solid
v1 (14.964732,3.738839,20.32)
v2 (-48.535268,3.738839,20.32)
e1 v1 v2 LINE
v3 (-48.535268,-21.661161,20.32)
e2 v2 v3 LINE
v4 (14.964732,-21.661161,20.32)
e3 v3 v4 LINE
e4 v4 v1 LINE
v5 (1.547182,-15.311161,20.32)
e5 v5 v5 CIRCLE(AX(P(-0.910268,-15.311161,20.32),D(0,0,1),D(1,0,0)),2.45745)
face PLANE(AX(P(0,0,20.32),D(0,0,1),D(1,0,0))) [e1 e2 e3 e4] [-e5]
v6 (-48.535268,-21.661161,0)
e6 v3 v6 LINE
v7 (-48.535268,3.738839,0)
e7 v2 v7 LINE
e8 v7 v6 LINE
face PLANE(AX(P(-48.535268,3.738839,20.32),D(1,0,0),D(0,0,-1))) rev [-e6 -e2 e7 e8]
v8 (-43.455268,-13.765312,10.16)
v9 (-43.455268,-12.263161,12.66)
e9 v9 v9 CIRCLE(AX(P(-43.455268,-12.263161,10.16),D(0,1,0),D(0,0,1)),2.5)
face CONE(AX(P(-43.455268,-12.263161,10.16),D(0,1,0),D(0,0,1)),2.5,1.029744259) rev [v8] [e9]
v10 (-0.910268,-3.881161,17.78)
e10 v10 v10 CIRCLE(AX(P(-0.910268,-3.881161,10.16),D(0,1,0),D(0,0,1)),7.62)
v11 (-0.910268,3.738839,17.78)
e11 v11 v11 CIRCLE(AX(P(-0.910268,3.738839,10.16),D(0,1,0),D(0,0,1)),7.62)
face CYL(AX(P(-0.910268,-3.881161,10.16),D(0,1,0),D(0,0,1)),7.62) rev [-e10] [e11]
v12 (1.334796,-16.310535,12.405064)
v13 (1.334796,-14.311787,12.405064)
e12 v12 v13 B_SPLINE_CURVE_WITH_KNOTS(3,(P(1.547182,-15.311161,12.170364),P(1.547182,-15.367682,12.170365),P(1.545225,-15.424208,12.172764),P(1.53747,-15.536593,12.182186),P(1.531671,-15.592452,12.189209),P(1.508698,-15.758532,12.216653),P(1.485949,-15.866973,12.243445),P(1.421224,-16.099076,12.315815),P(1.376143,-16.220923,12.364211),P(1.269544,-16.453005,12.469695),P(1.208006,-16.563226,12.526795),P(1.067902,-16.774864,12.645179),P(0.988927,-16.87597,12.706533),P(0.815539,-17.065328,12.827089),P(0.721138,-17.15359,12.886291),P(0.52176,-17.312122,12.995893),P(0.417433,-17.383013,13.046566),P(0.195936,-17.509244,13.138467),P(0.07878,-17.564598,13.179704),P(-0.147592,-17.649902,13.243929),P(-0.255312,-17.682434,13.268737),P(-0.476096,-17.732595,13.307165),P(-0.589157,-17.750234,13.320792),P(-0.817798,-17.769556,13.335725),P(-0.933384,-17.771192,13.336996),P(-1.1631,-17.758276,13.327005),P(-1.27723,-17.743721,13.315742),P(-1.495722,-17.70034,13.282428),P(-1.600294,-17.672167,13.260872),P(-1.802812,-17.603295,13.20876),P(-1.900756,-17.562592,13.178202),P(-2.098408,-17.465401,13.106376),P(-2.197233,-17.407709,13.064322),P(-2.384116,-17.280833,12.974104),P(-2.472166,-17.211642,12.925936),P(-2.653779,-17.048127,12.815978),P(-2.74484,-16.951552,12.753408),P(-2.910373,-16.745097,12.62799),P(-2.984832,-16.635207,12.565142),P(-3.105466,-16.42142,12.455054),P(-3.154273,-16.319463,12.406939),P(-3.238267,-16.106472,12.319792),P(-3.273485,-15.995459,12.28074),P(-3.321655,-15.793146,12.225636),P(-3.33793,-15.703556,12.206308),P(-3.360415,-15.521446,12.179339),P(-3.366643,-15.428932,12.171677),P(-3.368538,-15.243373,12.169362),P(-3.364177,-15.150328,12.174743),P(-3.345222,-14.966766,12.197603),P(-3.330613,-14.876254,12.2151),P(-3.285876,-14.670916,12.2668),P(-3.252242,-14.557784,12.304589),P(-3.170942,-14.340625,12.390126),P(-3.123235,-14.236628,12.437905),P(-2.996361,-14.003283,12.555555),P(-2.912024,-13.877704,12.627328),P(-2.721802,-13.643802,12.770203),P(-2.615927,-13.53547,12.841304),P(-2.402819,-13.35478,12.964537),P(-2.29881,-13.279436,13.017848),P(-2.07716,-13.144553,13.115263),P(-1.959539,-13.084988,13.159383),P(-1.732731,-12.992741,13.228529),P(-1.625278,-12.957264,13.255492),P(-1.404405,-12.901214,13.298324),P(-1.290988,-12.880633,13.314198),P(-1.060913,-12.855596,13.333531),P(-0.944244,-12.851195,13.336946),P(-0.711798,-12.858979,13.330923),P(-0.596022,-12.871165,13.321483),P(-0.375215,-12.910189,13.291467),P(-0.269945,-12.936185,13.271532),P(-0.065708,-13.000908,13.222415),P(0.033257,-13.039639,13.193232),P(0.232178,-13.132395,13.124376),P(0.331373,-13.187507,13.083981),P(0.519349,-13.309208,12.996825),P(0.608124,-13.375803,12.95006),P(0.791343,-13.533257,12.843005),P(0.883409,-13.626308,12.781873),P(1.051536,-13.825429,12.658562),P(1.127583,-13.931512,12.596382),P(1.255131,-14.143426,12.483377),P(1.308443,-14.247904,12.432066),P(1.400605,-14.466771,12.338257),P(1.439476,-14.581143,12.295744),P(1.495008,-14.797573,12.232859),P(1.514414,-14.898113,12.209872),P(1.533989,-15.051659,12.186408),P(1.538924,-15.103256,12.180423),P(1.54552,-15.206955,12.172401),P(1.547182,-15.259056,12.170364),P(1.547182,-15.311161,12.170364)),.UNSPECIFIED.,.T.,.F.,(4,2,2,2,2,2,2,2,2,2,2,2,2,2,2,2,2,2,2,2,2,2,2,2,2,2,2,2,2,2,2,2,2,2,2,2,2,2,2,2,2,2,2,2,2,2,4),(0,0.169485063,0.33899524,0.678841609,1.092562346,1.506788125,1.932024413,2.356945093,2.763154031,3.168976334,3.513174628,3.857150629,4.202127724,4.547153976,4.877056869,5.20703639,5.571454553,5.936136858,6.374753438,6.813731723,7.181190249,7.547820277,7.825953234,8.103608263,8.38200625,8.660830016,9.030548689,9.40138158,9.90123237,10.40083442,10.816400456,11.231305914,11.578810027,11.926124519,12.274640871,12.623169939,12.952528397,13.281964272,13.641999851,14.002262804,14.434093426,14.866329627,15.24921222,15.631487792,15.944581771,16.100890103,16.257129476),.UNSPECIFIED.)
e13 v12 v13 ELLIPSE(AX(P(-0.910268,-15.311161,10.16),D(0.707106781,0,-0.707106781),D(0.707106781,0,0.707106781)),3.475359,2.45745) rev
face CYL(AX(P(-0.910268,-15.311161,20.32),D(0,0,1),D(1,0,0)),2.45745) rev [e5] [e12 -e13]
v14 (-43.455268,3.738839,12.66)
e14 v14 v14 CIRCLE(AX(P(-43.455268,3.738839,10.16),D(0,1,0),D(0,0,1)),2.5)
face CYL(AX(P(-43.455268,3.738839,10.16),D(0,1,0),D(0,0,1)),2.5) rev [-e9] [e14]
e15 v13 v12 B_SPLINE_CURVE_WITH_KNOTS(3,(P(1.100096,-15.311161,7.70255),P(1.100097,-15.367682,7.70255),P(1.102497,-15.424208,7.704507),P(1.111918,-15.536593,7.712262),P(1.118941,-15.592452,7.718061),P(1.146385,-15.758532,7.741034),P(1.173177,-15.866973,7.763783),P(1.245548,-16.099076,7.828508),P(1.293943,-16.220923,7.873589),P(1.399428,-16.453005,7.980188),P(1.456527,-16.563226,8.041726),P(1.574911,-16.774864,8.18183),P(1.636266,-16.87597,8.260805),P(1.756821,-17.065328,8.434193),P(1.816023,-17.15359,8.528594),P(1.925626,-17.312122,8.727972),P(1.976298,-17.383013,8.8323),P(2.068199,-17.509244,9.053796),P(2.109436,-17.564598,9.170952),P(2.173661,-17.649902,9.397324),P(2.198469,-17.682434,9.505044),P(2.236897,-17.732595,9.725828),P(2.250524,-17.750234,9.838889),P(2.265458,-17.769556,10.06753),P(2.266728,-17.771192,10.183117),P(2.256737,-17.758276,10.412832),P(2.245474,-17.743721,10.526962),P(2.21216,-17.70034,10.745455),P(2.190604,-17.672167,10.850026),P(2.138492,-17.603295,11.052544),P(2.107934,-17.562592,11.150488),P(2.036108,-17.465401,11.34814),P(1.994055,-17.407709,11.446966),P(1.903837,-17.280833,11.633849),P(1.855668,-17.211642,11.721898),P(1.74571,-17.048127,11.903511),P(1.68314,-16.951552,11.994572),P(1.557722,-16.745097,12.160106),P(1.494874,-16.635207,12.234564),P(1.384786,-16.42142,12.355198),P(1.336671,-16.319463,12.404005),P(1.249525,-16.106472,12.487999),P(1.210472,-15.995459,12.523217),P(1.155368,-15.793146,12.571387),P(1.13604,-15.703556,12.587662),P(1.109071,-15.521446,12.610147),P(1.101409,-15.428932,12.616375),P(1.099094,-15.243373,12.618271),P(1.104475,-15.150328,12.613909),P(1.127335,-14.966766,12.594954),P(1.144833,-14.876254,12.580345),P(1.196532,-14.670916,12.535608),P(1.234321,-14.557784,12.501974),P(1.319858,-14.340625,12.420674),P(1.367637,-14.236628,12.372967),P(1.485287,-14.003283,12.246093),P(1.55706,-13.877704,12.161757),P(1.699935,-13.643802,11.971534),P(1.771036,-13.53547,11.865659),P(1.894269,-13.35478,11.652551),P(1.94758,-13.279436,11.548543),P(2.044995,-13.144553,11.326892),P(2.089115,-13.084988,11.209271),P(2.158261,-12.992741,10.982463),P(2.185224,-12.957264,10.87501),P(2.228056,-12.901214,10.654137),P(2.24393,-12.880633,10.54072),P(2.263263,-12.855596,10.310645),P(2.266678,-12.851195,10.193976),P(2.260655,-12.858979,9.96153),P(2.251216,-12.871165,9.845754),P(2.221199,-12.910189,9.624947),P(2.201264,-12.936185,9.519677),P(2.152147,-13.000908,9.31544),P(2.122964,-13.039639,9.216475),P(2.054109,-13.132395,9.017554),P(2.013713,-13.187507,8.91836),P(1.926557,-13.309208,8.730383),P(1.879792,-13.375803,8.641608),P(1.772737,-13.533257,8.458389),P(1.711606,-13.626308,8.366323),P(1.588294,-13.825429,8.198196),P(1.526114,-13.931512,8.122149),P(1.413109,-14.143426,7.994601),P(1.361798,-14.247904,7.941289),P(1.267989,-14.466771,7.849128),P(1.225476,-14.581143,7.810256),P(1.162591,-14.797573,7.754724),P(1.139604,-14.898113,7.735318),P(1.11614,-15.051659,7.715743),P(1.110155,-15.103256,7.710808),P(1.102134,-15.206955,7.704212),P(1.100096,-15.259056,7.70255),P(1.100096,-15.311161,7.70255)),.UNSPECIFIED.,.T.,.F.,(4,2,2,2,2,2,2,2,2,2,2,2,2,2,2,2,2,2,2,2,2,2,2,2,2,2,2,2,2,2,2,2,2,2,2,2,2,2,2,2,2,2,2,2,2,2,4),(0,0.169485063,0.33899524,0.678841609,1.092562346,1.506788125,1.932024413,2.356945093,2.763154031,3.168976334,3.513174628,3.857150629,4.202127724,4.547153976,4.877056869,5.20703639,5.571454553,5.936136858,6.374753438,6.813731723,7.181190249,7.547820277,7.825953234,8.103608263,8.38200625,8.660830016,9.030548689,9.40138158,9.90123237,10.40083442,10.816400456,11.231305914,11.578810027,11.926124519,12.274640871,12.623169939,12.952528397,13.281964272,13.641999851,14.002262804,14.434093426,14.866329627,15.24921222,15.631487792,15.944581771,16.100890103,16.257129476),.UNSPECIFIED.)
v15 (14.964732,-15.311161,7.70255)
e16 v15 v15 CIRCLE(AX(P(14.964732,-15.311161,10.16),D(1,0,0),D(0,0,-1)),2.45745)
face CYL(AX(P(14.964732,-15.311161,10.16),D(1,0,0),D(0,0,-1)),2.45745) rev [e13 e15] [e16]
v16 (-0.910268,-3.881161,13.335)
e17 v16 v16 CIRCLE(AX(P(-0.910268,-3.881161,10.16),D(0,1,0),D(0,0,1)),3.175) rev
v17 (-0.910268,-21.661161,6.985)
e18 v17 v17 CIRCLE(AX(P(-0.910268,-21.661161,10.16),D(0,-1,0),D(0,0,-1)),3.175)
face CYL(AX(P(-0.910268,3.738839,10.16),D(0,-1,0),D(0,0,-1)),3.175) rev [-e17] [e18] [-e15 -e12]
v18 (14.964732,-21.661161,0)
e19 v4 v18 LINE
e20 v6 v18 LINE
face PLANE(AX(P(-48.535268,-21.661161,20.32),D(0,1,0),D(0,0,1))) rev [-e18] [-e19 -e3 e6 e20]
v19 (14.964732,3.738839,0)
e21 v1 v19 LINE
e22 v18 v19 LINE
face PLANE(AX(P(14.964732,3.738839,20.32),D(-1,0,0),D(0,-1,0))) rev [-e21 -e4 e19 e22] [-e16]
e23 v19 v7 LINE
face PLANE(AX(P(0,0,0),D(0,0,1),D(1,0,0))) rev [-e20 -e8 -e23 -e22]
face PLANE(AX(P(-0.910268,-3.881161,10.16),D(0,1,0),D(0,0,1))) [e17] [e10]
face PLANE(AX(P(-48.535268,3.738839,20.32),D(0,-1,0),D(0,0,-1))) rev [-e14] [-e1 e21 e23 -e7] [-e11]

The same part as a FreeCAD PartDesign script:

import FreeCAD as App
import Part
import Sketcher

V = App.Vector
Q = App.Units.Quantity

doc = App.newDocument("Part")
body = doc.addObject("PartDesign::Body", "Body")

# Sketch on XY plane
sketch1 = body.newObject("Sketcher::SketchObject", "Sketch")
sketch1.AttachmentSupport = (doc.getObject("XY_Plane"), [""])
sketch1.MapMode = "FlatFace"
sketch1.addGeometry(Part.LineSegment(V(-49, 4, 0), V(-49, -22, 0)), False)
sketch1.addGeometry(Part.LineSegment(V(-49, -22, 0), V(15, -22, 0)), False)
sketch1.addGeometry(Part.LineSegment(V(15, -22, 0), V(15, 4, 0)), False)
sketch1.addGeometry(Part.LineSegment(V(15, 4, 0), V(-49, 4, 0)), False)
sketch1.addConstraint(Sketcher.Constraint("Coincident", 0, 2, 1, 1))
sketch1.addConstraint(Sketcher.Constraint("Coincident", 1, 2, 2, 1))
sketch1.addConstraint(Sketcher.Constraint("Coincident", 2, 2, 3, 1))
sketch1.addConstraint(Sketcher.Constraint("Coincident", 3, 2, 0, 1))
sketch1.addConstraint(Sketcher.Constraint("Vertical", 0))
sketch1.addConstraint(Sketcher.Constraint("Horizontal", 1))
sketch1.addConstraint(Sketcher.Constraint("Vertical", 2))
sketch1.addConstraint(Sketcher.Constraint("Horizontal", 3))
sketch1.addConstraint(Sketcher.Constraint("DistanceY", 0, 2, 0, 1, Q("1 in")))
sketch1.addConstraint(Sketcher.Constraint("DistanceX", 1, 1, 1, 2, Q("2.5 in")))
sketch1.addConstraint(Sketcher.Constraint("DistanceY", 0, 2, -1, 1, 21.661161))
sketch1.addConstraint(Sketcher.Constraint("DistanceX", 0, 2, -1, 1, 48.535268))
pad1 = body.newObject("PartDesign::Pad", "Pad")
pad1.Profile = sketch1
pad1.Length = Q("0.8 in")

# Sketch on YZ plane
sketch2 = body.newObject("Sketcher::SketchObject", "Sketch001")
sketch2.AttachmentSupport = (doc.getObject("YZ_Plane"), [""])
sketch2.MapMode = "FlatFace"
sketch2.AttachmentOffset = App.Placement(V(0, 0, 14.964732), App.Rotation())
sketch2.addGeometry(Part.Circle(V(-15.3, 10.2, 0), V(0, 0, 1), 2.5), False)
sketch2.addConstraint(Sketcher.Constraint("Diameter", 0, Q("0.1935 in")))
sketch2.addConstraint(Sketcher.Constraint("DistanceY", -1, 1, 0, 3, Q("0.4 in")))
sketch2.addConstraint(Sketcher.Constraint("DistanceX", 0, 3, -1, 1, 15.311161))
doc.recompute()
hole = body.newObject("PartDesign::Hole", "Hole")
hole.Profile = sketch2
hole.ThreadType = "None"
hole.Diameter = Q("0.1935 in")
hole.DepthType = "Dimension"
hole.Depth = Q("0.625 in")
hole.DrillPoint = "Angled"
hole.DrillPointAngle = 118

# Sketch on XY plane
sketch3 = body.newObject("Sketcher::SketchObject", "Sketch002")
sketch3.AttachmentSupport = (doc.getObject("XY_Plane"), [""])
sketch3.MapMode = "FlatFace"
sketch3.AttachmentOffset = App.Placement(V(0, 0, 0.8 * 25.4), App.Rotation())
sketch3.addGeometry(Part.Circle(V(-0.9, -15.3, 0), V(0, 0, 1), 2.5), False)
sketch3.addConstraint(Sketcher.Constraint("Diameter", 0, Q("0.1935 in")))
sketch3.addConstraint(Sketcher.Constraint("DistanceY", 0, 3, -1, 1, 15.311161))
sketch3.addConstraint(Sketcher.Constraint("DistanceX", 0, 3, -1, 1, 0.910268))
doc.recompute()
hole2 = body.newObject("PartDesign::Hole", "Hole001")
hole2.Profile = sketch3
hole2.ThreadType = "None"
hole2.Diameter = Q("0.1935 in")
hole2.DepthType = "Dimension"
hole2.Depth = Q("0.4 in")
hole2.DrillPoint = "Angled"
hole2.DrillPointAngle = 118

# Sketch on XZ plane
sketch4 = body.newObject("Sketcher::SketchObject", "Sketch003")
sketch4.AttachmentSupport = (doc.getObject("XZ_Plane"), [""])
sketch4.MapMode = "FlatFace"
sketch4.AttachmentOffset = App.Placement(V(0, 0, 21.661161), App.Rotation())
sketch4.addGeometry(Part.Circle(V(-0.9, 10.2, 0), V(0, 0, 1), 3.2), False)
sketch4.addConstraint(Sketcher.Constraint("Diameter", 0, Q("0.25 in")))
sketch4.addConstraint(Sketcher.Constraint("DistanceY", -1, 1, 0, 3, Q("0.4 in")))
sketch4.addConstraint(Sketcher.Constraint("DistanceX", 0, 3, -1, 1, 0.910268))
pocket1 = body.newObject("PartDesign::Pocket", "Pocket")
pocket1.Profile = sketch4
pocket1.Type = "ThroughAll"

# Sketch on XZ plane
sketch5 = body.newObject("Sketcher::SketchObject", "Sketch004")
sketch5.AttachmentSupport = (doc.getObject("XZ_Plane"), [""])
sketch5.MapMode = "FlatFace"
sketch5.AttachmentOffset = App.Placement(V(0, 0, -3.738839), App.Rotation())
sketch5.addGeometry(Part.Circle(V(-1, 10, 0), V(0, 0, 1), 8), False)
sketch5.addConstraint(Sketcher.Constraint("Diameter", 0, Q("0.6 in")))
sketch5.addConstraint(Sketcher.Constraint("DistanceY", -1, 1, 0, 3, Q("0.4 in")))
sketch5.addConstraint(Sketcher.Constraint("DistanceX", 0, 3, -1, 1, 0.910268))
pocket2 = body.newObject("PartDesign::Pocket", "Pocket001")
pocket2.Profile = sketch5
pocket2.Length = Q("0.3 in")
pocket2.Reversed = True

# Sketch on XZ plane
sketch6 = body.newObject("Sketcher::SketchObject", "Sketch005")
sketch6.AttachmentSupport = (doc.getObject("XZ_Plane"), [""])
sketch6.MapMode = "FlatFace"
sketch6.AttachmentOffset = App.Placement(V(0, 0, -3.738839), App.Rotation())
sketch6.addGeometry(Part.Circle(V(-43.5, 10.2, 0), V(0, 0, 1), 2.5), False)
sketch6.addConstraint(Sketcher.Constraint("DistanceY", -1, 1, 0, 3, Q("0.4 in")))
sketch6.addConstraint(Sketcher.Constraint("Diameter", 0, 5.0))
sketch6.addConstraint(Sketcher.Constraint("DistanceX", 0, 3, -1, 1, 43.455268))
doc.recompute()
hole3 = body.newObject("PartDesign::Hole", "Hole002")
hole3.Profile = sketch6
hole3.ThreadType = "None"
hole3.Diameter = 5
hole3.DepthType = "Dimension"
hole3.Depth = Q("0.63 in")
hole3.DrillPoint = "Angled"
hole3.DrillPointAngle = 118
hole3.Reversed = True

doc.recompute()
